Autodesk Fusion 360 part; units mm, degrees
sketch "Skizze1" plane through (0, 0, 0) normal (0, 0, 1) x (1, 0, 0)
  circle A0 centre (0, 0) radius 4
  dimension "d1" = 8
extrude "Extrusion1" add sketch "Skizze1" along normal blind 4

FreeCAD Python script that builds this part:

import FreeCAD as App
import Part
import Sketcher

doc = App.newDocument("Part")
body = doc.addObject("PartDesign::Body", "Body")

# Sketch on XY plane
sketch1 = body.newObject("Sketcher::SketchObject", "Sketch")
sketch1.AttachmentSupport = (doc.getObject("XY_Plane"), [""])
sketch1.MapMode = "FlatFace"
sketch1.addGeometry(Part.Circle(App.Vector(0, 0, 0), App.Vector(0, 0, 1), 4), False)
sketch1.addConstraint(Sketcher.Constraint("Coincident", 0, 3, -1, 1))
sketch1.addConstraint(Sketcher.Constraint("Diameter", 0, 8.0))
pad1 = body.newObject("PartDesign::Pad", "Pad")
pad1.Profile = sketch1
pad1.Length = 4

doc.recompute()
